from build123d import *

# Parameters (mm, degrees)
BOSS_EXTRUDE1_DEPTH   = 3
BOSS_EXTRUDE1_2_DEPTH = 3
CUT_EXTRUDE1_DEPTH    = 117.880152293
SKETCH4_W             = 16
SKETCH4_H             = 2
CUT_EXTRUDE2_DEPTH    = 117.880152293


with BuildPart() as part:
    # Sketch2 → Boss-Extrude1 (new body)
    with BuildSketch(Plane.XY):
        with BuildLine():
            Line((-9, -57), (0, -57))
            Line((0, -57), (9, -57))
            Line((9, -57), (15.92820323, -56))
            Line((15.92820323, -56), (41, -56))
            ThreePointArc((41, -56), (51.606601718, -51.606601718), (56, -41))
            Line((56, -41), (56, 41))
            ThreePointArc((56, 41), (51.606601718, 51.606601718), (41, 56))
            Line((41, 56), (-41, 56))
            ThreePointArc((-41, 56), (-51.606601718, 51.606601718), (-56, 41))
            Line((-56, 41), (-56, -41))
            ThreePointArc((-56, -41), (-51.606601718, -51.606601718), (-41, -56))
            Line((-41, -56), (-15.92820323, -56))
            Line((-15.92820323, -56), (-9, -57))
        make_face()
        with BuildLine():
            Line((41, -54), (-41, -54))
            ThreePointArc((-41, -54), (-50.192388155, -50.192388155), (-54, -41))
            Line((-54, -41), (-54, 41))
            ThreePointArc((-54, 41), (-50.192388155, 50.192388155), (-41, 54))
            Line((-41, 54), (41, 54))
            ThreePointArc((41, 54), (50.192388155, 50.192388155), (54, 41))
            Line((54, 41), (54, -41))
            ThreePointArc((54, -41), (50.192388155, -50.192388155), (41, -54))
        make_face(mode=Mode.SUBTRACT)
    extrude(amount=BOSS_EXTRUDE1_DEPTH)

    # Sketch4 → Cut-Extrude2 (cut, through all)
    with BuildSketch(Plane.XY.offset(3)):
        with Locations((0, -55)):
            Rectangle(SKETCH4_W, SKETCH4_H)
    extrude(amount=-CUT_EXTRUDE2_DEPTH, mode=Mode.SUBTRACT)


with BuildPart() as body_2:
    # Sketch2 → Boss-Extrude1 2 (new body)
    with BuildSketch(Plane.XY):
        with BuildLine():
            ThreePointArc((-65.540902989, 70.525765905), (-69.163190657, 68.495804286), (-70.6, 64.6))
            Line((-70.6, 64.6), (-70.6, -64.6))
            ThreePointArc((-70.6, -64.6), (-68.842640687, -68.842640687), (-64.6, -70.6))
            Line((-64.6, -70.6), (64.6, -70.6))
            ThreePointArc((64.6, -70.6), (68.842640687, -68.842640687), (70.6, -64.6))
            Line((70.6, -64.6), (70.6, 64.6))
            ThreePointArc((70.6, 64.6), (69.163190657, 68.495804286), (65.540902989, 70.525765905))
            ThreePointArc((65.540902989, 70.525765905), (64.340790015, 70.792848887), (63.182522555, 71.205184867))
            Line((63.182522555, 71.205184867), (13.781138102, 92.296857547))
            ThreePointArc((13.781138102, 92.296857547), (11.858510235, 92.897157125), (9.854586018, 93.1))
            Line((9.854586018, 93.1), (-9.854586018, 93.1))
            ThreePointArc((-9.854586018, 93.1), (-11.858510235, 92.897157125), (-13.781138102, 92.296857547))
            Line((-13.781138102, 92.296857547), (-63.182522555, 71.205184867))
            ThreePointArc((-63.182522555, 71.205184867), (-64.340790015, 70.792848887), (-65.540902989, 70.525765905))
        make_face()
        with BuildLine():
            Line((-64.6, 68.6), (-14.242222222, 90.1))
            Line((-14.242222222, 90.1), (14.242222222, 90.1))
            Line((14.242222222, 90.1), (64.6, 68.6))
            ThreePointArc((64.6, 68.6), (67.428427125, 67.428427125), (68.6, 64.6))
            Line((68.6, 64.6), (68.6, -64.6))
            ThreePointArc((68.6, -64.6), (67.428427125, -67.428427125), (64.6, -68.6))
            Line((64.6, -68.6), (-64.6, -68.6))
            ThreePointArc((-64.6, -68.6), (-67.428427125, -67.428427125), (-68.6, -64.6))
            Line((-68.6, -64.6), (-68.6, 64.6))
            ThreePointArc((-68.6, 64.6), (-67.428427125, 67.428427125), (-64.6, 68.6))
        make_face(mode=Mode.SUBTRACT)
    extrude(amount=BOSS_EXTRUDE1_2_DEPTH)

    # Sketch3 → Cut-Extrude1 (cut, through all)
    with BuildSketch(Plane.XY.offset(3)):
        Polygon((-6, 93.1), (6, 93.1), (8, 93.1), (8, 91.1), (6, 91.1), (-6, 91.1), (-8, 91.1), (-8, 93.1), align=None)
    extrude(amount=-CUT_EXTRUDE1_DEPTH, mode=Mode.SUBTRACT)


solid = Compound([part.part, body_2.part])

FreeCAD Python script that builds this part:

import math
import FreeCAD as App
import Part
import Sketcher
Q = App.Units.Quantity

doc = App.newDocument("Part")
params = doc.addObject("Spreadsheet::Sheet", "Params")
for row, (alias, value) in enumerate([
    ("sketch1_radius", "15 mm"),
    ("sketch1_radius2", "13 mm"),
    ("sketch1_width", "18 mm"),
    ("sketch1_width2", "82 mm"),
    ("sketch1_length", "7 mm"),
    ("pad1_length", "3 mm"),
    ("sketch2_width", "16 mm"),
    ("sketch2_height", "2 mm"),
    ("sketch3_radius", "6 mm"),
    ("sketch3_radius2", "10 mm"),
    ("sketch3_radius3", "4 mm"),
    ("sketch3_width", "129.2 mm"),
    ("pad2_length", "3 mm"),
    ("sketch4_width", "16 mm"),
    ("sketch4_height", "2 mm"),
], start=1):
    params.set(f"A{row}", alias)
    params.set(f"B{row}", "=" + value)
    params.setAlias(f"B{row}", alias)

body = doc.addObject("PartDesign::Body", "Body")

sketch1 = doc.addObject("Sketcher::SketchObject", "Sketch")
body.addObject(sketch1)
sketch1.AttachmentSupport = (doc.XY_Plane, [""])
sketch1.MapMode = "FlatFace"
sketch1.addGeometry([
    Part.LineSegment(App.Vector(-9, -57, 0), App.Vector(9, -57, 0)),
    Part.LineSegment(App.Vector(9, -57, 0), App.Vector(16, -56, 0)),
    Part.LineSegment(App.Vector(16, -56, 0), App.Vector(41, -56, 0)),
    Part.ArcOfCircle(Part.Circle(App.Vector(41, -41, 0), App.Vector(0, 0, 1), 15), math.radians(-90), math.radians(0)),
    Part.LineSegment(App.Vector(56, -41, 0), App.Vector(56, 41, 0)),
    Part.ArcOfCircle(Part.Circle(App.Vector(41, 41, 0), App.Vector(0, 0, 1), 15), math.radians(0), math.radians(90)),
    Part.LineSegment(App.Vector(41, 56, 0), App.Vector(-41, 56, 0)),
    Part.ArcOfCircle(Part.Circle(App.Vector(-41, 41, 0), App.Vector(0, 0, 1), 15), math.radians(90), math.radians(180)),
    Part.LineSegment(App.Vector(-56, 41, 0), App.Vector(-56, -41, 0)),
    Part.ArcOfCircle(Part.Circle(App.Vector(-41, -41, 0), App.Vector(0, 0, 1), 15), math.radians(180), math.radians(270)),
    Part.LineSegment(App.Vector(-41, -56, 0), App.Vector(-16, -56, 0)),
    Part.LineSegment(App.Vector(-16, -56, 0), App.Vector(-9, -57, 0)),
    Part.ArcOfCircle(Part.Circle(App.Vector(41, -41, 0), App.Vector(0, 0, 1), 13), math.radians(-90), math.radians(0)),
    Part.LineSegment(App.Vector(41, -54, 0), App.Vector(-41, -54, 0)),
    Part.ArcOfCircle(Part.Circle(App.Vector(-41, -41, 0), App.Vector(0, 0, 1), 13), math.radians(-180), math.radians(-90)),
    Part.LineSegment(App.Vector(-54, -41, 0), App.Vector(-54, 41, 0)),
    Part.ArcOfCircle(Part.Circle(App.Vector(-41, 41, 0), App.Vector(0, 0, 1), 13), math.radians(90), math.radians(180)),
    Part.LineSegment(App.Vector(-41, 54, 0), App.Vector(41, 54, 0)),
    Part.ArcOfCircle(Part.Circle(App.Vector(41, 41, 0), App.Vector(0, 0, 1), 13), math.radians(0), math.radians(90)),
    Part.LineSegment(App.Vector(54, 41, 0), App.Vector(54, -41, 0)),
], False)
sketch1.addConstraint([
    Sketcher.Constraint("Coincident", 0, 2, 1, 1),
    Sketcher.Constraint("Coincident", 1, 2, 2, 1),
    Sketcher.Constraint("Tangent", 2, 2, 3, 1),
    Sketcher.Constraint("Tangent", 3, 2, 4, 1),
    Sketcher.Constraint("Tangent", 4, 2, 5, 1),
    Sketcher.Constraint("Tangent", 5, 2, 6, 1),
    Sketcher.Constraint("Tangent", 6, 2, 7, 1),
    Sketcher.Constraint("Tangent", 7, 2, 8, 1),
    Sketcher.Constraint("Tangent", 8, 2, 9, 1),
    Sketcher.Constraint("Tangent", 9, 2, 10, 1),
    Sketcher.Constraint("Coincident", 10, 2, 11, 1),
    Sketcher.Constraint("Coincident", 11, 2, 0, 1),
    Sketcher.Constraint("Tangent", 12, 1, 13, 1),
    Sketcher.Constraint("Tangent", 13, 2, 14, 2),
    Sketcher.Constraint("Tangent", 14, 1, 15, 1),
    Sketcher.Constraint("Tangent", 15, 2, 16, 2),
    Sketcher.Constraint("Tangent", 16, 1, 17, 1),
    Sketcher.Constraint("Tangent", 17, 2, 18, 2),
    Sketcher.Constraint("Tangent", 18, 1, 19, 1),
    Sketcher.Constraint("Tangent", 19, 2, 12, 2),
    Sketcher.Constraint("Horizontal", 0),
    Sketcher.Constraint("Horizontal", 2),
    Sketcher.Constraint("Vertical", 4),
    Sketcher.Constraint("Horizontal", 6),
    Sketcher.Constraint("Vertical", 8),
    Sketcher.Constraint("Horizontal", 10),
    Sketcher.Constraint("Horizontal", 13),
    Sketcher.Constraint("Vertical", 15),
    Sketcher.Constraint("Horizontal", 17),
    Sketcher.Constraint("Vertical", 19),
    Sketcher.Constraint("Coincident", 12, 3, 3, 3),
    Sketcher.Constraint("Coincident", 14, 3, 9, 3),
    Sketcher.Constraint("Coincident", 16, 3, 7, 3),
    Sketcher.Constraint("Coincident", 18, 3, 5, 3),
    Sketcher.Constraint("Equal", 3, 5),
    Sketcher.Constraint("Equal", 5, 7),
    Sketcher.Constraint("Equal", 7, 9),
    Sketcher.Constraint("Symmetric", 3, 3, 7, 3, -1, 1),
    Sketcher.Constraint("Equal", 2, 10),
    Sketcher.Constraint("Equal", 17, 4),
    Sketcher.Constraint("Equal", 1, 11),
    Sketcher.Constraint("Radius", 3, Q("15 mm")),
    Sketcher.Constraint("Radius", 12, Q("13 mm")),
    Sketcher.Constraint("DistanceX", 0, 1, 0, 2, Q("18 mm")),
    Sketcher.Constraint("DistanceX", 6, 2, 6, 1, Q("82 mm")),
    Sketcher.Constraint("Distance", 1, Q("7 mm")),
    Sketcher.Constraint("DistanceY", 0, 2, -1, 1, Q("57 mm")),
])
sketch1.setExpression("Constraints[41]", "Params.sketch1_radius")
sketch1.setExpression("Constraints[42]", "Params.sketch1_radius2")
sketch1.setExpression("Constraints[43]", "Params.sketch1_width")
sketch1.setExpression("Constraints[44]", "Params.sketch1_width2")
sketch1.setExpression("Constraints[45]", "Params.sketch1_length")
pad1 = doc.addObject("PartDesign::Pad", "Pad")
body.addObject(pad1)
pad1.Profile = sketch1
pad1.setExpression("Length", "Params.pad1_length")

sketch2 = doc.addObject("Sketcher::SketchObject", "Sketch001")
body.addObject(sketch2)
sketch2.AttachmentSupport = (doc.XY_Plane, [""])
sketch2.MapMode = "FlatFace"
sketch2.AttachmentOffset = App.Placement(App.Vector(0, 0, 3), App.Rotation())
sketch2.addGeometry([
    Part.LineSegment(App.Vector(-8, -54, 0), App.Vector(-8, -56, 0)),
    Part.LineSegment(App.Vector(-8, -56, 0), App.Vector(8, -56, 0)),
    Part.LineSegment(App.Vector(8, -56, 0), App.Vector(8, -54, 0)),
    Part.LineSegment(App.Vector(8, -54, 0), App.Vector(-8, -54, 0)),
], False)
sketch2.addConstraint([
    Sketcher.Constraint("Coincident", 0, 2, 1, 1),
    Sketcher.Constraint("Coincident", 1, 2, 2, 1),
    Sketcher.Constraint("Coincident", 2, 2, 3, 1),
    Sketcher.Constraint("Coincident", 3, 2, 0, 1),
    Sketcher.Constraint("Vertical", 0),
    Sketcher.Constraint("Horizontal", 1),
    Sketcher.Constraint("Vertical", 2),
    Sketcher.Constraint("Horizontal", 3),
    Sketcher.Constraint("DistanceX", 1, 1, 1, 2, Q("16 mm")),
    Sketcher.Constraint("DistanceY", 0, 2, 0, 1, Q("2 mm")),
    Sketcher.Constraint("DistanceX", 0, 2, -1, 1, Q("8 mm")),
    Sketcher.Constraint("DistanceY", 0, 2, -1, 1, Q("56 mm")),
])
sketch2.setExpression("Constraints[8]", "Params.sketch2_width")
sketch2.setExpression("Constraints[9]", "Params.sketch2_height")
pocket1 = doc.addObject("PartDesign::Pocket", "Pocket")
body.addObject(pocket1)
pocket1.Profile = sketch2
pocket1.Type = "ThroughAll"
body2 = doc.addObject("PartDesign::Body", "Body001")

sketch3 = doc.addObject("Sketcher::SketchObject", "Sketch002")
body2.addObject(sketch3)
sketch3.AttachmentSupport = (doc.getObject("XY_Plane001"), [""])
sketch3.MapMode = "FlatFace"
sketch3.addGeometry([
    Part.ArcOfCircle(Part.Circle(App.Vector(-64.6, 64.6, 0), App.Vector(0, 0, 1), 6), math.radians(99), math.radians(180)),
    Part.LineSegment(App.Vector(-70.6, 64.6, 0), App.Vector(-70.6, -64.6, 0)),
    Part.ArcOfCircle(Part.Circle(App.Vector(-64.6, -64.6, 0), App.Vector(0, 0, 1), 6), math.radians(180), math.radians(270)),
    Part.LineSegment(App.Vector(-64.6, -70.6, 0), App.Vector(64.6, -70.6, 0)),
    Part.ArcOfCircle(Part.Circle(App.Vector(64.6, -64.6, 0), App.Vector(0, 0, 1), 6), math.radians(-90), math.radians(0)),
    Part.LineSegment(App.Vector(70.6, -64.6, 0), App.Vector(70.6, 64.6, 0)),
    Part.ArcOfCircle(Part.Circle(App.Vector(64.6, 64.6, 0), App.Vector(0, 0, 1), 6), math.radians(0), math.radians(81)),
    Part.ArcOfCircle(Part.Circle(App.Vector(67.1, 80.4, 0), App.Vector(0, 0, 1), 10), math.radians(-113.12), math.radians(-99.02)),
    Part.LineSegment(App.Vector(63.2, 71.2, 0), App.Vector(13.8, 92.3, 0)),
    Part.ArcOfCircle(Part.Circle(App.Vector(9.9, 83.1, 0), App.Vector(0, 0, 1), 10), math.radians(67), math.radians(90)),
    Part.LineSegment(App.Vector(9.9, 93.1, 0), App.Vector(-9.9, 93.1, 0)),
    Part.ArcOfCircle(Part.Circle(App.Vector(-9.9, 83.1, 0), App.Vector(0, 0, 1), 10), math.radians(90), math.radians(113)),
    Part.LineSegment(App.Vector(-13.8, 92.3, 0), App.Vector(-63.2, 71.2, 0)),
    Part.ArcOfCircle(Part.Circle(App.Vector(-67.1, 80.4, 0), App.Vector(0, 0, 1), 10), math.radians(-80.98), math.radians(-66.88)),
    Part.ArcOfCircle(Part.Circle(App.Vector(-64.6, 64.6, 0), App.Vector(0, 0, 1), 4), math.radians(90), math.radians(180)),
    Part.LineSegment(App.Vector(-64.6, 68.6, 0), App.Vector(-14.2, 90.1, 0)),
    Part.LineSegment(App.Vector(-14.2, 90.1, 0), App.Vector(14.2, 90.1, 0)),
    Part.LineSegment(App.Vector(14.2, 90.1, 0), App.Vector(64.6, 68.6, 0)),
    Part.ArcOfCircle(Part.Circle(App.Vector(64.6, 64.6, 0), App.Vector(0, 0, 1), 4), math.radians(0), math.radians(90)),
    Part.LineSegment(App.Vector(68.6, 64.6, 0), App.Vector(68.6, -64.6, 0)),
    Part.ArcOfCircle(Part.Circle(App.Vector(64.6, -64.6, 0), App.Vector(0, 0, 1), 4), math.radians(-90), math.radians(0)),
    Part.LineSegment(App.Vector(64.6, -68.6, 0), App.Vector(-64.6, -68.6, 0)),
    Part.ArcOfCircle(Part.Circle(App.Vector(-64.6, -64.6, 0), App.Vector(0, 0, 1), 4), math.radians(180), math.radians(270)),
    Part.LineSegment(App.Vector(-68.6, -64.6, 0), App.Vector(-68.6, 64.6, 0)),
], False)
sketch3.addConstraint([
    Sketcher.Constraint("Tangent", 0, 2, 1, 1),
    Sketcher.Constraint("Tangent", 1, 2, 2, 1),
    Sketcher.Constraint("Tangent", 2, 2, 3, 1),
    Sketcher.Constraint("Tangent", 3, 2, 4, 1),
    Sketcher.Constraint("Tangent", 4, 2, 5, 1),
    Sketcher.Constraint("Tangent", 5, 2, 6, 1),
    Sketcher.Constraint("Tangent", 6, 2, 7, 2),
    Sketcher.Constraint("Tangent", 7, 1, 8, 1),
    Sketcher.Constraint("Tangent", 8, 2, 9, 1),
    Sketcher.Constraint("Tangent", 9, 2, 10, 1),
    Sketcher.Constraint("Tangent", 10, 2, 11, 1),
    Sketcher.Constraint("Tangent", 11, 2, 12, 1),
    Sketcher.Constraint("Tangent", 12, 2, 13, 2),
    Sketcher.Constraint("Tangent", 13, 1, 0, 1),
    Sketcher.Constraint("Coincident", 14, 1, 15, 1),
    Sketcher.Constraint("Coincident", 15, 2, 16, 1),
    Sketcher.Constraint("Coincident", 16, 2, 17, 1),
    Sketcher.Constraint("Coincident", 17, 2, 18, 2),
    Sketcher.Constraint("Tangent", 18, 1, 19, 1),
    Sketcher.Constraint("Tangent", 19, 2, 20, 2),
    Sketcher.Constraint("Tangent", 20, 1, 21, 1),
    Sketcher.Constraint("Tangent", 21, 2, 22, 2),
    Sketcher.Constraint("Tangent", 22, 1, 23, 1),
    Sketcher.Constraint("Tangent", 23, 2, 14, 2),
    Sketcher.Constraint("Vertical", 1),
    Sketcher.Constraint("Horizontal", 3),
    Sketcher.Constraint("Vertical", 5),
    Sketcher.Constraint("Horizontal", 10),
    Sketcher.Constraint("Horizontal", 16),
    Sketcher.Constraint("Vertical", 19),
    Sketcher.Constraint("Horizontal", 21),
    Sketcher.Constraint("Vertical", 23),
    Sketcher.Constraint("Coincident", 14, 3, 0, 3),
    Sketcher.Constraint("Coincident", 18, 3, 6, 3),
    Sketcher.Constraint("Coincident", 20, 3, 4, 3),
    Sketcher.Constraint("Coincident", 22, 3, 2, 3),
    Sketcher.Constraint("Equal", 0, 2),
    Sketcher.Constraint("Equal", 2, 4),
    Sketcher.Constraint("Equal", 4, 6),
    Sketcher.Constraint("Equal", 7, 9),
    Sketcher.Constraint("Equal", 9, 11),
    Sketcher.Constraint("Equal", 11, 13),
    Sketcher.Constraint("Symmetric", 0, 3, 4, 3, -1, 1),
    Sketcher.Constraint("Symmetric", 17, 2, 21, 2, -1, 1),
    Sketcher.Constraint("Symmetric", 8, 2, 11, 2, -2),
    Sketcher.Constraint("Parallel", 12, 15),
    Sketcher.Constraint("Parallel", 8, 17),
    Sketcher.Constraint("Vertical", 2, 2, 14, 1),
    Sketcher.Constraint("Equal", 21, 1),
    Sketcher.Constraint("Radius", 0, Q("6 mm")),
    Sketcher.Constraint("Radius", 7, Q("10 mm")),
    Sketcher.Constraint("Radius", 14, Q("4 mm")),
    Sketcher.Constraint("DistanceX", 3, 1, 3, 2, Q("129.2 mm")),
    Sketcher.Constraint("DistanceY", 15, 2, 10, 2, Q("3 mm")),
    Sketcher.Constraint("DistanceY", -1, 1, 9, 3, Q("83.1 mm")),
    Sketcher.Constraint("DistanceX", 10, 2, 10, 1, Q("19.709172 mm")),
    Sketcher.Constraint("DistanceX", 16, 1, 16, 2, Q("28.484444 mm")),
])
sketch3.setExpression("Constraints[49]", "Params.sketch3_radius")
sketch3.setExpression("Constraints[50]", "Params.sketch3_radius2")
sketch3.setExpression("Constraints[51]", "Params.sketch3_radius3")
sketch3.setExpression("Constraints[52]", "Params.sketch3_width")
pad2 = doc.addObject("PartDesign::Pad", "Pad001")
body2.addObject(pad2)
pad2.Profile = sketch3
pad2.setExpression("Length", "Params.pad2_length")

sketch4 = doc.addObject("Sketcher::SketchObject", "Sketch003")
body2.addObject(sketch4)
sketch4.AttachmentSupport = (doc.getObject("XY_Plane001"), [""])
sketch4.MapMode = "FlatFace"
sketch4.AttachmentOffset = App.Placement(App.Vector(0, 0, 3), App.Rotation())
sketch4.addGeometry([
    Part.LineSegment(App.Vector(8, 93.1, 0), App.Vector(-8, 93.1, 0)),
    Part.LineSegment(App.Vector(-8, 93.1, 0), App.Vector(-8, 91.1, 0)),
    Part.LineSegment(App.Vector(-8, 91.1, 0), App.Vector(8, 91.1, 0)),
    Part.LineSegment(App.Vector(8, 91.1, 0), App.Vector(8, 93.1, 0)),
], False)
sketch4.addConstraint([
    Sketcher.Constraint("Coincident", 0, 2, 1, 1),
    Sketcher.Constraint("Coincident", 1, 2, 2, 1),
    Sketcher.Constraint("Coincident", 2, 2, 3, 1),
    Sketcher.Constraint("Coincident", 3, 2, 0, 1),
    Sketcher.Constraint("Horizontal", 0),
    Sketcher.Constraint("Vertical", 1),
    Sketcher.Constraint("Horizontal", 2),
    Sketcher.Constraint("Vertical", 3),
    Sketcher.Constraint("DistanceX", 0, 2, 0, 1, Q("16 mm")),
    Sketcher.Constraint("DistanceY", 1, 2, 1, 1, Q("2 mm")),
    Sketcher.Constraint("DistanceX", 0, 2, -1, 1, Q("8 mm")),
    Sketcher.Constraint("DistanceY", -1, 1, 0, 2, Q("93.1 mm")),
])
sketch4.setExpression("Constraints[8]", "Params.sketch4_width")
sketch4.setExpression("Constraints[9]", "Params.sketch4_height")
pocket2 = doc.addObject("PartDesign::Pocket", "Pocket001")
body2.addObject(pocket2)
pocket2.Profile = sketch4
pocket2.Type = "ThroughAll"

doc.recompute()
